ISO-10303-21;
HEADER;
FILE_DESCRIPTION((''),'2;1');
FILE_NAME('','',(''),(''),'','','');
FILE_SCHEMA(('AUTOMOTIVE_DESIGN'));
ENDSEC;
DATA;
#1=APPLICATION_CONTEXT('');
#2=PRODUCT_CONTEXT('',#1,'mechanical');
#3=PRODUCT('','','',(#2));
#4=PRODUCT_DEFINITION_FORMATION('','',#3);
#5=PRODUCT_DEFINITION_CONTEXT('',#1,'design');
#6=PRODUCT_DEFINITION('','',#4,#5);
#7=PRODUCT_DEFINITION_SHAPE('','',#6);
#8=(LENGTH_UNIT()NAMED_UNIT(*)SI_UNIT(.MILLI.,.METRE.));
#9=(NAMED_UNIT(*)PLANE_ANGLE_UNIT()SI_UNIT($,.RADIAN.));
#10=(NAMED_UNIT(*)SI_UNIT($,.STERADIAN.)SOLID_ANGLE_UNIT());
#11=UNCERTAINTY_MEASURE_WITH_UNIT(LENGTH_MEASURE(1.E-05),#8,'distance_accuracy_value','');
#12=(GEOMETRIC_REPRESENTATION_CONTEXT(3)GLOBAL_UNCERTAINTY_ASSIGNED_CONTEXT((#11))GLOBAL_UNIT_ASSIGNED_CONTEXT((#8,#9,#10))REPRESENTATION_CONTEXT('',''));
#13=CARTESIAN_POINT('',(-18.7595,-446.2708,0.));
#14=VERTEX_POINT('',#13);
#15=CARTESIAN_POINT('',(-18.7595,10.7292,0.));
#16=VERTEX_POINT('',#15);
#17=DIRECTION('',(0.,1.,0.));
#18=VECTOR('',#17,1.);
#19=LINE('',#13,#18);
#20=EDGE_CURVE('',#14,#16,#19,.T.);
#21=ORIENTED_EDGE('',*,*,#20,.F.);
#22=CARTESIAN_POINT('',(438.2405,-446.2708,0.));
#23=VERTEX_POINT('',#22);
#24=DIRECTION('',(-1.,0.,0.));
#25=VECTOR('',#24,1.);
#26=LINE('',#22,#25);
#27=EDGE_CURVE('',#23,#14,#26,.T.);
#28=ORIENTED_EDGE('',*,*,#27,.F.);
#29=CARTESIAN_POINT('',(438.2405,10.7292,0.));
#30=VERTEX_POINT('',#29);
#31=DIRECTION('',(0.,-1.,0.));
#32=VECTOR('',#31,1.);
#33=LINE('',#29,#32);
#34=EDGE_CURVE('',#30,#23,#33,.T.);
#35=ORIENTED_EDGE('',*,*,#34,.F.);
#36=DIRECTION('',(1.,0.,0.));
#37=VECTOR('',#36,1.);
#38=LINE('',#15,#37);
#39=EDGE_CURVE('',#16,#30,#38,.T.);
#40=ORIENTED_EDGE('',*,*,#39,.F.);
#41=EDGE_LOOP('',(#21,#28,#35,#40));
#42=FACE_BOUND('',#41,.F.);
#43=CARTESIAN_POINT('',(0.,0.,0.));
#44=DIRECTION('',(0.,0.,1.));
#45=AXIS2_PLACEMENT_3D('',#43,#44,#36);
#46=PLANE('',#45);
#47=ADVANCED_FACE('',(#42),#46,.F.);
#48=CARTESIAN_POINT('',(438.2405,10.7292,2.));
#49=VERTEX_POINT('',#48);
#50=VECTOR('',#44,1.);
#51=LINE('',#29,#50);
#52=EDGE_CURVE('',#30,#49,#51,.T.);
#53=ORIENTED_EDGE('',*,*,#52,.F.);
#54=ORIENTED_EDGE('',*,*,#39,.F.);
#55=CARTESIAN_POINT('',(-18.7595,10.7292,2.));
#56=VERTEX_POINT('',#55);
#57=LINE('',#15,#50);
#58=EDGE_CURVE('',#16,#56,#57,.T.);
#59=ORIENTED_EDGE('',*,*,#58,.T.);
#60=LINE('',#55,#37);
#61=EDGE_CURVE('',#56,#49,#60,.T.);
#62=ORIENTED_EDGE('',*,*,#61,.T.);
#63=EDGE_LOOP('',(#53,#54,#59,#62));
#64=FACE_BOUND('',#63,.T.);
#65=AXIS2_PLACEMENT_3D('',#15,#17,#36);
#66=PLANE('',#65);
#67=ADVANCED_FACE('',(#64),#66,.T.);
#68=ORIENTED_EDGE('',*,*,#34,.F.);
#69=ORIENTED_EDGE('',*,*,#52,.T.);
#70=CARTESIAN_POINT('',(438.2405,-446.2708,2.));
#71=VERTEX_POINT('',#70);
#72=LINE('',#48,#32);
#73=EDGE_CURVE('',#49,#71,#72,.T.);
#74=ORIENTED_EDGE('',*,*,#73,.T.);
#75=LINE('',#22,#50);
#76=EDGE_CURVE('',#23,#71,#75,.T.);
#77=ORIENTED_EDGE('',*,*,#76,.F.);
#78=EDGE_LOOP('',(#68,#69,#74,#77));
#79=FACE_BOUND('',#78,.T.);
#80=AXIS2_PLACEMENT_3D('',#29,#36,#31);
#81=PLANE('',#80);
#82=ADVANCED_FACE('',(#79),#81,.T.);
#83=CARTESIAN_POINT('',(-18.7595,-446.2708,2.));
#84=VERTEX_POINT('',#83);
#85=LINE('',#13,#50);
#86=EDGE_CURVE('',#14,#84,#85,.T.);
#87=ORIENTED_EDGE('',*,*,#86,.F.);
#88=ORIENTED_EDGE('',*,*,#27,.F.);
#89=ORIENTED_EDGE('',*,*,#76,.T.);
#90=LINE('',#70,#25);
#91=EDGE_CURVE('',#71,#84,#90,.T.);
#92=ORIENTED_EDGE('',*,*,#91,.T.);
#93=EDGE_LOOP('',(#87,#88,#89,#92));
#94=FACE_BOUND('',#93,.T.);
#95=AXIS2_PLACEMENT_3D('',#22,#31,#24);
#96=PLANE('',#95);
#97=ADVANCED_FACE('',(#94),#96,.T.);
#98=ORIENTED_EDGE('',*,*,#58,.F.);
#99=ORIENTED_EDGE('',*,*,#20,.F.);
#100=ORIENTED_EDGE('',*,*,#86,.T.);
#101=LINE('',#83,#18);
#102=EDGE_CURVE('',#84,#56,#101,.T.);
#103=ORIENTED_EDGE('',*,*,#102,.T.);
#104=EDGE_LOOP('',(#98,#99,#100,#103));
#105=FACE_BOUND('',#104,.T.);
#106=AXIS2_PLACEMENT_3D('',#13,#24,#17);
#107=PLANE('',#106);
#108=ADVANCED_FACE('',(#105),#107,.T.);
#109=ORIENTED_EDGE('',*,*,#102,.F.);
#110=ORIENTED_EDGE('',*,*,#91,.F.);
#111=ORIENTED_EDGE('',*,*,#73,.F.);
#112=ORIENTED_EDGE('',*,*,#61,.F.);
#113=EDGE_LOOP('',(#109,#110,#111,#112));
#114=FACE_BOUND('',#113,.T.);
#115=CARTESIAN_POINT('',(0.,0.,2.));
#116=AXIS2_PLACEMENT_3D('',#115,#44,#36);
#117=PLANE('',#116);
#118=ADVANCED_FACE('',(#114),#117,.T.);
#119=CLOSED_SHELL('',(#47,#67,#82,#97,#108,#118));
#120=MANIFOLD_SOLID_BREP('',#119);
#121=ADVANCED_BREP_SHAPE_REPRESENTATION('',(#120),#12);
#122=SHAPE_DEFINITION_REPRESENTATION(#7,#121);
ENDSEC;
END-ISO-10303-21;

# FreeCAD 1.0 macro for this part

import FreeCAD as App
import Part
import Sketcher
from FreeCAD import Vector
Q = App.Units.Quantity

doc = App.newDocument("Part")
params = doc.addObject("Spreadsheet::Sheet", "Params")
for row, (alias, value) in enumerate([
    ("sketch1_width", "457 mm"),
    ("pad1_length", "2 mm"),
], start=1):
    params.set(f"A{row}", alias)
    params.set(f"B{row}", "=" + value)
    params.setAlias(f"B{row}", alias)

body = doc.addObject("PartDesign::Body", "Body")

# Sketch on XY plane
sketch1 = doc.addObject("Sketcher::SketchObject", "Sketch")
body.addObject(sketch1)
sketch1.AttachmentSupport = (doc.XY_Plane, [""])
sketch1.MapMode = "FlatFace"
sketch1.addGeometry(Part.LineSegment(Vector(438.2405, 10.7292, 0), Vector(-18.7595, 10.7292, 0)), False)
sketch1.addGeometry(Part.LineSegment(Vector(-18.7595, 10.7292, 0), Vector(-18.7595, -446.2708, 0)), False)
sketch1.addGeometry(Part.LineSegment(Vector(-18.7595, -446.2708, 0), Vector(438.2405, -446.2708, 0)), False)
sketch1.addGeometry(Part.LineSegment(Vector(438.2405, -446.2708, 0), Vector(438.2405, 10.7292, 0)), False)
sketch1.addConstraint(Sketcher.Constraint("Coincident", 0, 2, 1, 1))
sketch1.addConstraint(Sketcher.Constraint("Coincident", 1, 2, 2, 1))
sketch1.addConstraint(Sketcher.Constraint("Coincident", 2, 2, 3, 1))
sketch1.addConstraint(Sketcher.Constraint("Coincident", 3, 2, 0, 1))
sketch1.addConstraint(Sketcher.Constraint("Horizontal", 0))
sketch1.addConstraint(Sketcher.Constraint("Vertical", 1))
sketch1.addConstraint(Sketcher.Constraint("Horizontal", 2))
sketch1.addConstraint(Sketcher.Constraint("Vertical", 3))
sketch1.addConstraint(Sketcher.Constraint("Equal", 2, 1))
sketch1.addConstraint(Sketcher.Constraint("DistanceX", 0, 2, 0, 1, Q("457 mm")))
sketch1.addConstraint(Sketcher.Constraint("DistanceX", 0, 2, -1, 1, Q("18.7595 mm")))
sketch1.addConstraint(Sketcher.Constraint("DistanceY", -1, 1, 0, 2, Q("10.7292 mm")))
sketch1.setExpression("Constraints[9]", "Params.sketch1_width")
pad1 = doc.addObject("PartDesign::Pad", "Pad")
body.addObject(pad1)
pad1.Profile = sketch1
pad1.setExpression("Length", "Params.pad1_length")

doc.recompute()
